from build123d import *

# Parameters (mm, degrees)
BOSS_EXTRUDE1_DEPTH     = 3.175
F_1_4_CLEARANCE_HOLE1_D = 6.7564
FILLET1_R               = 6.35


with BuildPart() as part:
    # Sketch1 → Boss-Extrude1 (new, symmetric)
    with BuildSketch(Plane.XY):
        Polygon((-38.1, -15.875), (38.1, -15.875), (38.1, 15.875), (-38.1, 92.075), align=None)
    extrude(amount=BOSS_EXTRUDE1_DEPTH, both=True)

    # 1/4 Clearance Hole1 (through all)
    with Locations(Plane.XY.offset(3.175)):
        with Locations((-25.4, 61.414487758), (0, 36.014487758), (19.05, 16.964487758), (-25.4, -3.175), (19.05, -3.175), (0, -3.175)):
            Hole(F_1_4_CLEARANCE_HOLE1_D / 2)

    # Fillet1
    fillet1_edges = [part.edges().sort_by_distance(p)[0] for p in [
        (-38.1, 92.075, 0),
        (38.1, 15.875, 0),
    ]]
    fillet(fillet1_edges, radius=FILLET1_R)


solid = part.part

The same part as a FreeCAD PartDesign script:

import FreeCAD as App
import Part
import Sketcher
Q = App.Units.Quantity


def edges_at(feature, points):
    """Names of the edges that pass closest to the given points."""
    edges = feature.Shape.Edges
    near = lambda p: min(range(len(edges)), key=lambda i: edges[i].distToShape(Part.Vertex(*p))[0])
    return sorted({f"Edge{near(p) + 1}" for p in points})

doc = App.newDocument("Part")
params = doc.addObject("Spreadsheet::Sheet", "Params")
for row, (alias, value) in enumerate([
    ("sketch1_width", "3 in"),
    ("sketch1_height", "1.25 in"),
    ("pad1_length", "0.25 in"),
    ("sketch2_diameter", "0.266 in"),
    ("hole_diameter", "0.266 in"),
    ("fillet_radius", "0.25 in"),
], start=1):
    params.set(f"A{row}", alias)
    params.set(f"B{row}", "=" + value)
    params.setAlias(f"B{row}", alias)

body = doc.addObject("PartDesign::Body", "Body")

sketch1 = doc.addObject("Sketcher::SketchObject", "Sketch")
body.addObject(sketch1)
sketch1.AttachmentSupport = (doc.XY_Plane, [""])
sketch1.MapMode = "FlatFace"
sketch1.addGeometry([
    Part.LineSegment(App.Vector(-38.1, -15.875, 0), App.Vector(38.1, -15.875, 0)),
    Part.LineSegment(App.Vector(38.1, -15.875, 0), App.Vector(38.1, 15.875, 0)),
    Part.LineSegment(App.Vector(38.1, 15.875, 0), App.Vector(-38.1, 92.075, 0)),
    Part.LineSegment(App.Vector(-38.1, 92.075, 0), App.Vector(-38.1, -15.875, 0)),
], False)
sketch1.addConstraint([
    Sketcher.Constraint("Coincident", 0, 2, 1, 1),
    Sketcher.Constraint("Coincident", 1, 2, 2, 1),
    Sketcher.Constraint("Coincident", 2, 2, 3, 1),
    Sketcher.Constraint("Coincident", 3, 2, 0, 1),
    Sketcher.Constraint("Horizontal", 0),
    Sketcher.Constraint("Vertical", 1),
    Sketcher.Constraint("Vertical", 3),
    Sketcher.Constraint("Symmetric", 1, 2, 3, 2, -1, 1),
    Sketcher.Constraint("DistanceX", 0, 1, 0, 2, Q("3 in")),
    Sketcher.Constraint("Angle", 2, Q("135 deg")),
    Sketcher.Constraint("DistanceY", 1, 1, 1, 2, Q("1.25 in")),
])
sketch1.setExpression("Constraints[8]", "Params.sketch1_width")
sketch1.setExpression("Constraints[10]", "Params.sketch1_height")
pad1 = doc.addObject("PartDesign::Pad", "Pad")
body.addObject(pad1)
pad1.Profile = sketch1
pad1.setExpression("Length", "Params.pad1_length")
pad1.Midplane = True

sketch2 = doc.addObject("Sketcher::SketchObject", "Sketch001")
body.addObject(sketch2)
sketch2.AttachmentSupport = (doc.XY_Plane, [""])
sketch2.MapMode = "FlatFace"
sketch2.AttachmentOffset = App.Placement(App.Vector(0, 0, 0.125 * 25.4), App.Rotation())
sketch2.addGeometry([
    Part.Circle(App.Vector(-25.4, 61.414488, 0), App.Vector(0, 0, 1), 3.3782),
    Part.Circle(App.Vector(0, 36.014488, 0), App.Vector(0, 0, 1), 3.3782),
    Part.Circle(App.Vector(19.05, 16.964488, 0), App.Vector(0, 0, 1), 3.3782),
    Part.Circle(App.Vector(-25.4, -3.175, 0), App.Vector(0, 0, 1), 3.3782),
    Part.Circle(App.Vector(19.05, -3.175, 0), App.Vector(0, 0, 1), 3.3782),
    Part.Circle(App.Vector(0, -3.175, 0), App.Vector(0, 0, 1), 3.3782),
], False)
sketch2.addConstraint([
    Sketcher.Constraint("Equal", 0, 1),
    Sketcher.Constraint("Equal", 1, 2),
    Sketcher.Constraint("Equal", 2, 3),
    Sketcher.Constraint("Equal", 3, 4),
    Sketcher.Constraint("Equal", 4, 5),
    Sketcher.Constraint("PointOnObject", 1, 3, -2),
    Sketcher.Constraint("PointOnObject", 5, 3, -2),
    Sketcher.Constraint("Horizontal", 3, 3, 4, 3),
    Sketcher.Constraint("Horizontal", 4, 3, 5, 3),
    Sketcher.Constraint("Vertical", 0, 3, 3, 3),
    Sketcher.Constraint("Vertical", 2, 3, 4, 3),
    Sketcher.Constraint("Diameter", 0, Q("0.266 in")),
    Sketcher.Constraint("DistanceX", 0, 3, -1, 1, Q("1 in")),
    Sketcher.Constraint("DistanceY", 1, 3, 0, 3, Q("1 in")),
    Sketcher.Constraint("DistanceX", -1, 1, 2, 3, Q("0.75 in")),
    Sketcher.Constraint("DistanceY", 2, 3, 1, 3, Q("0.75 in")),
    Sketcher.Constraint("DistanceY", 3, 3, -1, 1, Q("0.125 in")),
    Sketcher.Constraint("DistanceY", -1, 1, 0, 3, Q("61.414488 mm")),
])
sketch2.setExpression("Constraints[11]", "Params.sketch2_diameter")
doc.recompute()
hole = doc.addObject("PartDesign::Hole", "Hole")
body.addObject(hole)
hole.Profile = sketch2
hole.ThreadType = "None"
hole.setExpression("Diameter", "Params.hole_diameter")
hole.DepthType = "ThroughAll"
doc.recompute()

fillet = doc.addObject("PartDesign::Fillet", "Fillet")
body.addObject(fillet)
fillet.Base = (hole, edges_at(hole, [(-38.1, 92.075, 0), (38.1, 15.875, 0)]))
fillet.setExpression("Radius", "Params.fillet_radius")

doc.recompute()
